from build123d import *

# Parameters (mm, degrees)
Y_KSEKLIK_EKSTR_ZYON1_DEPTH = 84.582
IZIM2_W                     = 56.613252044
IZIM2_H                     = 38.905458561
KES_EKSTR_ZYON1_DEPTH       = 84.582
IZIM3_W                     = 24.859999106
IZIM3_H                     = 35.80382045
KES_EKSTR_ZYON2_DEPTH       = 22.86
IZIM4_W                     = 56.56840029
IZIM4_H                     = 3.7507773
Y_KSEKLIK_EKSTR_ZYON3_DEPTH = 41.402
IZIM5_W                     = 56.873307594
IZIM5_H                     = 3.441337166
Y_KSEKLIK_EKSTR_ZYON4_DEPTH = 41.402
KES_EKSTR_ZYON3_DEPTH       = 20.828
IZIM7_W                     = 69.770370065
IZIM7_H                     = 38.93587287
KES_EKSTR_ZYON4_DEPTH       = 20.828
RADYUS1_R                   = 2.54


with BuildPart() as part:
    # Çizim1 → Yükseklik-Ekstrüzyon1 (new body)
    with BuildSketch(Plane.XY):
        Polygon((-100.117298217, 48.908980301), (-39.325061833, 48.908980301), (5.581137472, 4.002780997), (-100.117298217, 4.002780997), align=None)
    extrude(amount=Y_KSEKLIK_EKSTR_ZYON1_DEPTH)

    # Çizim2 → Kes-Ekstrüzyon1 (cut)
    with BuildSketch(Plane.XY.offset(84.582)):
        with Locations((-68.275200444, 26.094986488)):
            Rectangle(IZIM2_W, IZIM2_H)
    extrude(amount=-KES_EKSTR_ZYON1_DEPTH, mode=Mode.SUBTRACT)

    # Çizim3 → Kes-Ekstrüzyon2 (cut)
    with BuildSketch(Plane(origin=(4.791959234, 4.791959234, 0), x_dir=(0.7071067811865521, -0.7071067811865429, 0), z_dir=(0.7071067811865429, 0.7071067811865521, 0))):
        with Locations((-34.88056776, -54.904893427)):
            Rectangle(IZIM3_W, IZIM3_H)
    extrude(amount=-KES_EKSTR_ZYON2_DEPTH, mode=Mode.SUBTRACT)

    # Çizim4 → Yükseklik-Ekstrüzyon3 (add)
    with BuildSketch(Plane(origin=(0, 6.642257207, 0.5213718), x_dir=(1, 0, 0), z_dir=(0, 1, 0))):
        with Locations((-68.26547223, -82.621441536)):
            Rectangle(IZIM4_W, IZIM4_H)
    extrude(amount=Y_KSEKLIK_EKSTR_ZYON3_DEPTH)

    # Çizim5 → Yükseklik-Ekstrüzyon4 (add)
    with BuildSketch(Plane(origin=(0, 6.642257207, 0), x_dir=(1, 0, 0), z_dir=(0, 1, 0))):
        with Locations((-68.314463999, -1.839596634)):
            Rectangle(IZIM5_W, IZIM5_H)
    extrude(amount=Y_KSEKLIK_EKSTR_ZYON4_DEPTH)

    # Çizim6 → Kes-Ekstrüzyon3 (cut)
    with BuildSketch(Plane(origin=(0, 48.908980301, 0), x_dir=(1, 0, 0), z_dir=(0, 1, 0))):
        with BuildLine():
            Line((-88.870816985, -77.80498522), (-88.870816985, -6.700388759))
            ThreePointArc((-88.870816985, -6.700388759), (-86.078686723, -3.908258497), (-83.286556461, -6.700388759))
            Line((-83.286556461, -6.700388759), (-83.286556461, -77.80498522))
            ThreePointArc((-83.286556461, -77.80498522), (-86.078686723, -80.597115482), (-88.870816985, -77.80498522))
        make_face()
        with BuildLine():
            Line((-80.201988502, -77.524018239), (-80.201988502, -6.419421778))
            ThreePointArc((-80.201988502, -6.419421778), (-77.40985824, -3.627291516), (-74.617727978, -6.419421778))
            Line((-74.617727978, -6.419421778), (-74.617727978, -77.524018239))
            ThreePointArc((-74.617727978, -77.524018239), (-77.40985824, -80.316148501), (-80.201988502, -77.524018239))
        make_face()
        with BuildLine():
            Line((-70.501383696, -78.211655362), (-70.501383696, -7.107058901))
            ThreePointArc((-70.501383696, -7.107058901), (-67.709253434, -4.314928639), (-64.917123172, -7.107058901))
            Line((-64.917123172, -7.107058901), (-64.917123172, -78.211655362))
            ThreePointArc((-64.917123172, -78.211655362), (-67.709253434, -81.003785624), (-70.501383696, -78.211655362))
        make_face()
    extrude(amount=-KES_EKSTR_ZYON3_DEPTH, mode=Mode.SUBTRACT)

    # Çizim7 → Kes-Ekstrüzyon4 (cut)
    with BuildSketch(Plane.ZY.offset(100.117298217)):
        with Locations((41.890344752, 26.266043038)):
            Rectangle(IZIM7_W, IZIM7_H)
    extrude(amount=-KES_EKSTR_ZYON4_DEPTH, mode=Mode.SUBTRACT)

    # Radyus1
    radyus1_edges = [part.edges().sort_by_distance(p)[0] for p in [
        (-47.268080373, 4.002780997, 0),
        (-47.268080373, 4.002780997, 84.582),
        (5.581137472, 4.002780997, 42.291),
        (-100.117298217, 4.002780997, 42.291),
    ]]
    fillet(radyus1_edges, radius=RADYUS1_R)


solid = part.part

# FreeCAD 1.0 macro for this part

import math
import FreeCAD as App
import Part
import Sketcher
Q = App.Units.Quantity


def edges_at(feature, points):
    """Names of the edges that pass closest to the given points."""
    edges = feature.Shape.Edges
    near = lambda p: min(range(len(edges)), key=lambda i: edges[i].distToShape(Part.Vertex(*p))[0])
    return sorted({f"Edge{near(p) + 1}" for p in points})


def add_polygon(sketch, points):
    """Adds a closed chain of lines whose ends are joined by coincident constraints."""
    first, n = sketch.GeometryCount, len(points)
    for a, b in zip(points, points[1:] + points[:1]):
        sketch.addGeometry(Part.LineSegment(App.Vector(*a, 0), App.Vector(*b, 0)), False)
    for i in range(n):
        sketch.addConstraint(Sketcher.Constraint("Coincident", first + i, 2, first + (i + 1) % n, 1))

doc = App.newDocument("Part")
body = doc.addObject("PartDesign::Body", "Body")

# Sketch on XY plane
sketch1 = body.newObject("Sketcher::SketchObject", "Sketch")
sketch1.AttachmentSupport = (doc.getObject("XY_Plane"), [""])
sketch1.MapMode = "FlatFace"
add_polygon(sketch1, [(-39, 49), (-100, 49), (-100, 4), (6, 4)])  # lines 0-3
sketch1.addConstraint([
    Sketcher.Constraint("Horizontal", 0),
    Sketcher.Constraint("Vertical", 1),
    Sketcher.Constraint("Horizontal", 2),
    Sketcher.Constraint("Angle", 3, Q("135 deg")),
    Sketcher.Constraint("DistanceY", 1, 2, 1, 1, 44.906199),
    Sketcher.Constraint("DistanceX", 0, 2, -1, 1, 100.117298),
    Sketcher.Constraint("DistanceX", 0, 2, 0, 1, 60.792236),
    Sketcher.Constraint("DistanceY", -1, 1, 0, 2, 48.90898),
])
pad1 = body.newObject("PartDesign::Pad", "Pad")
pad1.Profile = sketch1
pad1.Length = Q("3.33 in")

# Sketch on XY plane
sketch2 = body.newObject("Sketcher::SketchObject", "Sketch001")
sketch2.AttachmentSupport = (doc.getObject("XY_Plane"), [""])
sketch2.MapMode = "FlatFace"
sketch2.AttachmentOffset = App.Placement(App.Vector(0, 0, 3.33 * 25.4), App.Rotation())
add_polygon(sketch2, [(-97, 46), (-97, 7), (-40, 7), (-40, 46)])  # lines 0-3
sketch2.addConstraint([
    Sketcher.Constraint("Vertical", 0),
    Sketcher.Constraint("Horizontal", 1),
    Sketcher.Constraint("Vertical", 2),
    Sketcher.Constraint("Horizontal", 3),
    Sketcher.Constraint("DistanceY", 0, 2, 0, 1, 38.905459),
    Sketcher.Constraint("DistanceX", 1, 1, 1, 2, 56.613252),
    Sketcher.Constraint("DistanceX", 0, 2, -1, 1, 96.581826),
    Sketcher.Constraint("DistanceY", -1, 1, 0, 2, 6.642257),
])
pocket1 = body.newObject("PartDesign::Pocket", "Pocket")
pocket1.Profile = sketch2
pocket1.Length = Q("3.33 in")

# Sketch on an angled plane
sketch3 = body.newObject("Sketcher::SketchObject", "Sketch002")
sketch3.Placement = App.Placement(App.Vector(4.791959, 4.791959, 0), App.Rotation(App.Vector(0.707106781, -0.707106781, 0), App.Vector(0, 0, -0.999999999), App.Vector(0.707106781, 0.707106781, 0), "ZXY"))
add_polygon(sketch3, [(-47, -37), (-47, -73), (-22, -73), (-22, -37)])  # lines 0-3
sketch3.addConstraint([
    Sketcher.Constraint("Vertical", 0),
    Sketcher.Constraint("Horizontal", 1),
    Sketcher.Constraint("Vertical", 2),
    Sketcher.Constraint("Horizontal", 3),
    Sketcher.Constraint("DistanceX", 1, 1, 1, 2, 24.859999),
    Sketcher.Constraint("DistanceY", 0, 2, 0, 1, 35.80382),
    Sketcher.Constraint("DistanceX", 1, 2, -1, 1, 22.450568),
    Sketcher.Constraint("DistanceY", 0, 2, -1, 1, 72.806804),
])
pocket2 = body.newObject("PartDesign::Pocket", "Pocket001")
pocket2.Profile = sketch3
pocket2.Length = Q("0.9 in")

# Sketch on XZ plane
sketch4 = body.newObject("Sketcher::SketchObject", "Sketch003")
sketch4.AttachmentSupport = (doc.getObject("XZ_Plane"), [""])
sketch4.MapMode = "FlatFace"
sketch4.AttachmentOffset = App.Placement(App.Vector(0, 0, -6.642257), App.Rotation())
add_polygon(sketch4, [(-96.5, 81.3), (-96.5, 85), (-40, 85), (-40, 81.3)])  # lines 0-3
sketch4.addConstraint([
    Sketcher.Constraint("Vertical", 0),
    Sketcher.Constraint("Horizontal", 1),
    Sketcher.Constraint("Vertical", 2),
    Sketcher.Constraint("Horizontal", 3),
    Sketcher.Constraint("DistanceX", 1, 1, 1, 2, 56.5684),
    Sketcher.Constraint("DistanceY", -1, 1, 0, 2, 85.018202),
    Sketcher.Constraint("DistanceY", 0, 1, 0, 2, 3.750777),
    Sketcher.Constraint("DistanceX", 0, 2, -1, 1, 96.549672),
])
pad2 = body.newObject("PartDesign::Pad", "Pad001")
pad2.Profile = sketch4
pad2.Length = Q("1.63 in")
pad2.Reversed = True

# Sketch on XZ plane
sketch5 = body.newObject("Sketcher::SketchObject", "Sketch004")
sketch5.AttachmentSupport = (doc.getObject("XZ_Plane"), [""])
sketch5.MapMode = "FlatFace"
sketch5.AttachmentOffset = App.Placement(App.Vector(0, 0, -6.642257), App.Rotation())
add_polygon(sketch5, [(-96.8, 0.1), (-96.8, 3.6), (-39.9, 3.6), (-39.9, 0.1)])  # lines 0-3
sketch5.addConstraint([
    Sketcher.Constraint("Vertical", 0),
    Sketcher.Constraint("Horizontal", 1),
    Sketcher.Constraint("Vertical", 2),
    Sketcher.Constraint("Horizontal", 3),
    Sketcher.Constraint("DistanceX", 1, 1, 1, 2, 56.873308),
    Sketcher.Constraint("DistanceY", 0, 1, 0, 2, 3.441337),
    Sketcher.Constraint("DistanceX", 1, 2, -1, 1, 39.87781),
    Sketcher.Constraint("DistanceY", -1, 1, 2, 2, 0.118928),
])
pad3 = body.newObject("PartDesign::Pad", "Pad002")
pad3.Profile = sketch5
pad3.Length = Q("1.63 in")
pad3.Reversed = True

# Sketch on XZ plane
sketch6 = body.newObject("Sketcher::SketchObject", "Sketch005")
sketch6.AttachmentSupport = (doc.getObject("XZ_Plane"), [""])
sketch6.MapMode = "FlatFace"
sketch6.AttachmentOffset = App.Placement(App.Vector(0, 0, -48.90898), App.Rotation())
sketch6.addGeometry([
    Part.LineSegment(App.Vector(-88.9, 6.7, 0), App.Vector(-88.9, 77.8, 0)),  # 0
    Part.ArcOfCircle(Part.Circle(App.Vector(-86.1, 77.8, 0), App.Vector(0, 0, 1), 2.8), math.radians(0), math.radians(180)),  # 1
    Part.LineSegment(App.Vector(-83.3, 77.8, 0), App.Vector(-83.3, 6.7, 0)),  # 2
    Part.ArcOfCircle(Part.Circle(App.Vector(-86.1, 6.7, 0), App.Vector(0, 0, 1), 2.8), math.radians(180), math.radians(360)),  # 3
    Part.LineSegment(App.Vector(-80.2, 6.4, 0), App.Vector(-80.2, 77.5, 0)),  # 4
    Part.ArcOfCircle(Part.Circle(App.Vector(-77.4, 77.5, 0), App.Vector(0, 0, 1), 2.8), math.radians(0), math.radians(180)),  # 5
    Part.LineSegment(App.Vector(-74.6, 77.5, 0), App.Vector(-74.6, 6.4, 0)),  # 6
    Part.ArcOfCircle(Part.Circle(App.Vector(-77.4, 6.4, 0), App.Vector(0, 0, 1), 2.8), math.radians(180), math.radians(360)),  # 7
    Part.LineSegment(App.Vector(-70.5, 7.1, 0), App.Vector(-70.5, 78.2, 0)),  # 8
    Part.ArcOfCircle(Part.Circle(App.Vector(-67.7, 78.2, 0), App.Vector(0, 0, 1), 2.8), math.radians(0), math.radians(180)),  # 9
    Part.LineSegment(App.Vector(-64.9, 78.2, 0), App.Vector(-64.9, 7.1, 0)),  # 10
    Part.ArcOfCircle(Part.Circle(App.Vector(-67.7, 7.1, 0), App.Vector(0, 0, 1), 2.8), math.radians(180), math.radians(360)),  # 11
], False)
sketch6.addConstraint([
    Sketcher.Constraint("Tangent", 0, 2, 1, 2),
    Sketcher.Constraint("Tangent", 1, 1, 2, 1),
    Sketcher.Constraint("Tangent", 2, 2, 3, 2),
    Sketcher.Constraint("Tangent", 3, 1, 0, 1),
    Sketcher.Constraint("Tangent", 4, 2, 5, 2),
    Sketcher.Constraint("Tangent", 5, 1, 6, 1),
    Sketcher.Constraint("Tangent", 6, 2, 7, 2),
    Sketcher.Constraint("Tangent", 7, 1, 4, 1),
    Sketcher.Constraint("Tangent", 8, 2, 9, 2),
    Sketcher.Constraint("Tangent", 9, 1, 10, 1),
    Sketcher.Constraint("Tangent", 10, 2, 11, 2),
    Sketcher.Constraint("Tangent", 11, 1, 8, 1),
    Sketcher.Constraint("Vertical", 0),
    Sketcher.Constraint("Vertical", 2),
    Sketcher.Constraint("Vertical", 4),
    Sketcher.Constraint("Vertical", 6),
    Sketcher.Constraint("Vertical", 8),
    Sketcher.Constraint("Vertical", 10),
    Sketcher.Constraint("Equal", 3, 5),
    Sketcher.Constraint("Equal", 7, 9),
    Sketcher.Constraint("Equal", 2, 4),
    Sketcher.Constraint("Equal", 6, 8),
    Sketcher.Constraint("Radius", 1, 2.79213),
    Sketcher.Constraint("DistanceX", 1, 1, 5, 3, 5.876698),
    Sketcher.Constraint("DistanceY", 0, 1, 0, 2, 71.104596),
    Sketcher.Constraint("DistanceY", -1, 1, 3, 3, 6.700389),
    Sketcher.Constraint("DistanceX", 5, 3, -1, 1, 77.409858),
    Sketcher.Constraint("DistanceY", -1, 1, 5, 3, 77.524018),
    Sketcher.Constraint("DistanceY", -1, 1, 11, 3, 7.107059),
    Sketcher.Constraint("DistanceX", 9, 3, -1, 1, 67.709253),
])
pocket3 = body.newObject("PartDesign::Pocket", "Pocket002")
pocket3.Profile = sketch6
pocket3.Length = Q("0.82 in")
pocket3.Reversed = True

# Sketch on YZ plane
sketch7 = body.newObject("Sketcher::SketchObject", "Sketch006")
sketch7.AttachmentSupport = (doc.getObject("YZ_Plane"), [""])
sketch7.MapMode = "FlatFace"
sketch7.AttachmentOffset = App.Placement(App.Vector(0, 0, -100.117298), App.Rotation())
add_polygon(sketch7, [(46, 7), (7, 7), (7, 77), (46, 77)])  # lines 0-3
sketch7.addConstraint([
    Sketcher.Constraint("Horizontal", 0),
    Sketcher.Constraint("Vertical", 1),
    Sketcher.Constraint("Horizontal", 2),
    Sketcher.Constraint("Vertical", 3),
    Sketcher.Constraint("DistanceY", 1, 1, 1, 2, 69.77037),
    Sketcher.Constraint("DistanceX", 0, 2, 0, 1, 38.935873),
    Sketcher.Constraint("DistanceY", -1, 1, 0, 2, 7.00516),
    Sketcher.Constraint("DistanceX", -1, 1, 2, 2, 45.733979),
])
pocket4 = body.newObject("PartDesign::Pocket", "Pocket003")
pocket4.Profile = sketch7
pocket4.Length = Q("0.82 in")
pocket4.Reversed = True
doc.recompute()

fillet = body.newObject("PartDesign::Fillet", "Fillet")
fillet.Base = (pocket4, edges_at(pocket4, [
    (-47.268, 4.003, 0),
    (-47.268, 4.003, 84.582),
    (5.581, 4.003, 42.291),
    (-100.117, 4.003, 42.291),
]))
fillet.Radius = Q("0.1 in")

doc.recompute()
